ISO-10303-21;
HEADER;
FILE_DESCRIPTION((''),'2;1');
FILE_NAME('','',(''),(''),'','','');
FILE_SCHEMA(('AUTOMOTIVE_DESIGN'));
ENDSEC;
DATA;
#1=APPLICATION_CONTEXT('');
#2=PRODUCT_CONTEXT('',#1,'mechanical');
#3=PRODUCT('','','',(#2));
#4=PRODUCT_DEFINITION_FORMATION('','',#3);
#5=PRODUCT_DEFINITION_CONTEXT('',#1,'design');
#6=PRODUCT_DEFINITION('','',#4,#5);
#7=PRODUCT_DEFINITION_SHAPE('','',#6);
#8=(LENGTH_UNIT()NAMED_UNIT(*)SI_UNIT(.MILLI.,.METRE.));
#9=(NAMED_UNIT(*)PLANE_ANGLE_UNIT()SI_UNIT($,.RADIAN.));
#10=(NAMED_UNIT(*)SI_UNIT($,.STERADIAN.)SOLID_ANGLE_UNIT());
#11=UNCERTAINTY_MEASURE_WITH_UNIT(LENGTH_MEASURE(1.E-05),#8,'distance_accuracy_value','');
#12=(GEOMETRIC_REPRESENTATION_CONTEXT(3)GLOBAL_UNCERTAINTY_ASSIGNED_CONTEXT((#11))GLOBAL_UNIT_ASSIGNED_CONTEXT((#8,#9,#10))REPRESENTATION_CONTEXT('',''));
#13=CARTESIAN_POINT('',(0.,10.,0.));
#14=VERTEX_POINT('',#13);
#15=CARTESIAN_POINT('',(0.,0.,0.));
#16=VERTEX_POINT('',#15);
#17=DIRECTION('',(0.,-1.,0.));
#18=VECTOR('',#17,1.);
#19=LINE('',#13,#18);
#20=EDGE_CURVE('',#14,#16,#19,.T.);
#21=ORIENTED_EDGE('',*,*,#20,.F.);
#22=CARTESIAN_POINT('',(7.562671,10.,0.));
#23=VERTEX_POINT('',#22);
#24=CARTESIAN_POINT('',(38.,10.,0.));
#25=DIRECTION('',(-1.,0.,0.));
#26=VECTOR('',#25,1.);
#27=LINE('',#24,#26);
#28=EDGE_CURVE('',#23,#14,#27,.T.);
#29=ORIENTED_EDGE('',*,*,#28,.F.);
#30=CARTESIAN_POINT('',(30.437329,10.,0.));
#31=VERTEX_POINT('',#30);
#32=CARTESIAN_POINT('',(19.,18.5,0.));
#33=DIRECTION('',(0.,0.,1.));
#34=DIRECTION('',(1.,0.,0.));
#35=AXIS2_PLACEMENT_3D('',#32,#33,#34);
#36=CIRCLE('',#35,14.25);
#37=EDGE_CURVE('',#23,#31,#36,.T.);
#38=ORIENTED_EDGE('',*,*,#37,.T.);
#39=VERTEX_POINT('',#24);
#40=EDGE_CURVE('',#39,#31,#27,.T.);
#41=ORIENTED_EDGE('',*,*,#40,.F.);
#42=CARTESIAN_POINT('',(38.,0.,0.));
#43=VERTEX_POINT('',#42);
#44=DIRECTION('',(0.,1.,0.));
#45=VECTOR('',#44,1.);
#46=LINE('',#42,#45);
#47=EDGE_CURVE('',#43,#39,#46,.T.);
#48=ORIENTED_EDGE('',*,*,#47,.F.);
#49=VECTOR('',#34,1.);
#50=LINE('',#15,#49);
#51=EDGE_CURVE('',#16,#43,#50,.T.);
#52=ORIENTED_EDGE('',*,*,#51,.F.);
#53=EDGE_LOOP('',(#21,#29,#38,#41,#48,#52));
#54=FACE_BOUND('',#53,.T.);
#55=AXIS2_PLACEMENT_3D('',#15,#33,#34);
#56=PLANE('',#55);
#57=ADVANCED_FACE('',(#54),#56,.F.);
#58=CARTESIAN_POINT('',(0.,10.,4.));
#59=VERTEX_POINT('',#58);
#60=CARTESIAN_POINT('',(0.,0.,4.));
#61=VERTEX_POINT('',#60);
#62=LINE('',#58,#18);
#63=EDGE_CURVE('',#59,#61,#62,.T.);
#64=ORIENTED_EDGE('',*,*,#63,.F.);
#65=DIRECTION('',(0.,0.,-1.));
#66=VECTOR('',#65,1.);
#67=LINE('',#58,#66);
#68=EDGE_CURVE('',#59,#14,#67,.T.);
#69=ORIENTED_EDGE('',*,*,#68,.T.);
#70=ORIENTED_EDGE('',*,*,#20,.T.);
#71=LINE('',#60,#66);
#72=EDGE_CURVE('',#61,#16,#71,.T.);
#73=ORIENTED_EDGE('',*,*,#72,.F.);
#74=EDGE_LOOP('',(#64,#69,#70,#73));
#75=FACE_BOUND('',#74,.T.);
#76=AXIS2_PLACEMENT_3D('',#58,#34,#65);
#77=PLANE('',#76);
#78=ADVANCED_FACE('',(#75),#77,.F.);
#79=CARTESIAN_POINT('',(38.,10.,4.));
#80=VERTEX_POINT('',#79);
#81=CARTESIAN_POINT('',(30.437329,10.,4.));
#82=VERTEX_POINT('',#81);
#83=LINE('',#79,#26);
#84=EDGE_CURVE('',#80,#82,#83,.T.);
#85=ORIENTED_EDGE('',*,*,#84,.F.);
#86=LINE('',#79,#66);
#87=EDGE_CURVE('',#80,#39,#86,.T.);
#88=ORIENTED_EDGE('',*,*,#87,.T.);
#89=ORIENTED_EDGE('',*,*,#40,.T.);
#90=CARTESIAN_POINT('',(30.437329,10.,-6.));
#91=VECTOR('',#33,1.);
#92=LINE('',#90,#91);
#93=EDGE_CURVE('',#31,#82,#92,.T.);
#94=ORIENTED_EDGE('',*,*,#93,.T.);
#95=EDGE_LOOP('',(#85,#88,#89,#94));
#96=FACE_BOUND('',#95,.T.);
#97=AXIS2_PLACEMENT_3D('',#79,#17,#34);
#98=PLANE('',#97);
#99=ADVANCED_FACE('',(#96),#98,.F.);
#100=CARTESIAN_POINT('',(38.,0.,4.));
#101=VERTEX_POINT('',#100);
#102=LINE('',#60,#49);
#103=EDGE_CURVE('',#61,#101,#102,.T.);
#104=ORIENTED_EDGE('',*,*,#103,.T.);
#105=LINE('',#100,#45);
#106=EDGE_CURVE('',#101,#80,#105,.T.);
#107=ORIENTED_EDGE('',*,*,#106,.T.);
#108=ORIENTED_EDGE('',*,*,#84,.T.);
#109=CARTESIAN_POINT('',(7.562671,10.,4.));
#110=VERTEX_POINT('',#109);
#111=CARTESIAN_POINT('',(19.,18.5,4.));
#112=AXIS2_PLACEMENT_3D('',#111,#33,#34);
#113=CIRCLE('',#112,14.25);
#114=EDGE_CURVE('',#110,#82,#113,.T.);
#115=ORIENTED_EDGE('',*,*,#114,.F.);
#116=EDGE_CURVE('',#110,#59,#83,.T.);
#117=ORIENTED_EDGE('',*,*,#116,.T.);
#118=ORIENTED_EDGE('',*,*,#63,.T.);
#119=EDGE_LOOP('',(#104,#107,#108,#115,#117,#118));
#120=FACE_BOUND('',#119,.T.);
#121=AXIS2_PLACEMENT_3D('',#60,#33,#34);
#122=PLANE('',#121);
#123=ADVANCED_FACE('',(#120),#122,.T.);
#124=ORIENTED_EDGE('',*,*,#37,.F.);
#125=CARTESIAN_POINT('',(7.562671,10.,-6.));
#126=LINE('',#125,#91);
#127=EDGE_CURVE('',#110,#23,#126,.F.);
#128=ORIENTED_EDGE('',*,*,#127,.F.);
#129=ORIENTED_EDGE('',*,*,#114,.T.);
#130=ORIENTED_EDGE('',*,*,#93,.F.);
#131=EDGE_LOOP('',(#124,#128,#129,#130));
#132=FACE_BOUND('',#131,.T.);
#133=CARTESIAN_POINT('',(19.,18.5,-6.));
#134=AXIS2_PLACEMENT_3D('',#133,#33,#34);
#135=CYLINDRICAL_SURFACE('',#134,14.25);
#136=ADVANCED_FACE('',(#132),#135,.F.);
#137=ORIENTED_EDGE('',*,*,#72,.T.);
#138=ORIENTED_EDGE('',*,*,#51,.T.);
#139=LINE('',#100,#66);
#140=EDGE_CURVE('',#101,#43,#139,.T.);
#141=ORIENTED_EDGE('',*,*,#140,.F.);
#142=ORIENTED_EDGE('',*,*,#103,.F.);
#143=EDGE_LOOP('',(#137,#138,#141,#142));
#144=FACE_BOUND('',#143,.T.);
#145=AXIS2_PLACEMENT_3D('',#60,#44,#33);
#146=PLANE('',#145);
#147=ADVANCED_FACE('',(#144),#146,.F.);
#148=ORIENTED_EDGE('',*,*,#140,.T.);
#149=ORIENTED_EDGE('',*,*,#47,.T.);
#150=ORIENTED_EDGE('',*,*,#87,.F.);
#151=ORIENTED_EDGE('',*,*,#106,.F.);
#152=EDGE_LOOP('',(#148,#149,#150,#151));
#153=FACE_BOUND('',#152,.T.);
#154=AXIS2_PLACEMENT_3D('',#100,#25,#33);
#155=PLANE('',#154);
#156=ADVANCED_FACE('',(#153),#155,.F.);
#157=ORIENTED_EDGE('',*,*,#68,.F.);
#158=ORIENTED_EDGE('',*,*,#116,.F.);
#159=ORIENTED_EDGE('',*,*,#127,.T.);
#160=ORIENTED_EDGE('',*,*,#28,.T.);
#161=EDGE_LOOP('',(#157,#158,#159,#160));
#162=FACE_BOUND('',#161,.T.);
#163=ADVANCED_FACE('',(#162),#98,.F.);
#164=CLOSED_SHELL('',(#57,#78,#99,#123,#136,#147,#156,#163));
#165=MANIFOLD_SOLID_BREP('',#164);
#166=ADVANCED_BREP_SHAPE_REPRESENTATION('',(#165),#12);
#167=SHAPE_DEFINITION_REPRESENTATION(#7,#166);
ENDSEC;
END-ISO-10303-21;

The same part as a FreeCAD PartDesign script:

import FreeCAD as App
import Part
import Sketcher

doc = App.newDocument("Part")
params = doc.addObject("Spreadsheet::Sheet", "Params")
for row, (alias, value) in enumerate([
    ("sketch1_width", "38 mm"),
    ("sketch1_height", "10 mm"),
    ("pad1_length", "4 mm"),
    ("sketch2_diameter", "28.5 mm"),
    ("pocket1_length", "10 mm"),
], start=1):
    params.set(f"A{row}", alias)
    params.set(f"B{row}", "=" + value)
    params.setAlias(f"B{row}", alias)

body = doc.addObject("PartDesign::Body", "Body")

sketch1 = body.newObject("Sketcher::SketchObject", "Sketch")
sketch1.AttachmentSupport = (doc.getObject("XY_Plane"), [""])
sketch1.MapMode = "FlatFace"
sketch1.addGeometry(Part.LineSegment(App.Vector(0, 10, 0), App.Vector(0, 0, 0)), False)
sketch1.addGeometry(Part.LineSegment(App.Vector(0, 0, 0), App.Vector(38, 0, 0)), False)
sketch1.addGeometry(Part.LineSegment(App.Vector(38, 0, 0), App.Vector(38, 10, 0)), False)
sketch1.addGeometry(Part.LineSegment(App.Vector(38, 10, 0), App.Vector(0, 10, 0)), False)
sketch1.addConstraint(Sketcher.Constraint("Coincident", 0, 2, 1, 1))
sketch1.addConstraint(Sketcher.Constraint("Coincident", 1, 2, 2, 1))
sketch1.addConstraint(Sketcher.Constraint("Coincident", 2, 2, 3, 1))
sketch1.addConstraint(Sketcher.Constraint("Coincident", 3, 2, 0, 1))
sketch1.addConstraint(Sketcher.Constraint("Vertical", 0))
sketch1.addConstraint(Sketcher.Constraint("Horizontal", 1))
sketch1.addConstraint(Sketcher.Constraint("Vertical", 2))
sketch1.addConstraint(Sketcher.Constraint("Horizontal", 3))
sketch1.addConstraint(Sketcher.Constraint("Coincident", 0, 2, -1, 1))
sketch1.addConstraint(Sketcher.Constraint("DistanceX", 1, 1, 1, 2, 38.0))
sketch1.addConstraint(Sketcher.Constraint("DistanceY", 0, 2, 0, 1, 10.0))
sketch1.setExpression("Constraints[9]", "Params.sketch1_width")
sketch1.setExpression("Constraints[10]", "Params.sketch1_height")
pad1 = body.newObject("PartDesign::Pad", "Pad")
pad1.Profile = sketch1
pad1.setExpression("Length", "Params.pad1_length")

sketch2 = body.newObject("Sketcher::SketchObject", "Sketch001")
sketch2.AttachmentSupport = (doc.getObject("XY_Plane"), [""])
sketch2.MapMode = "FlatFace"
sketch2.AttachmentOffset = App.Placement(App.Vector(0, 0, 4), App.Rotation())
sketch2.addGeometry(Part.Circle(App.Vector(19, 18.5, 0), App.Vector(0, 0, 1), 14.25), False)
sketch2.addConstraint(Sketcher.Constraint("Diameter", 0, 28.5))
sketch2.addConstraint(Sketcher.Constraint("DistanceX", -1, 1, 0, 3, 19.0))
sketch2.addConstraint(Sketcher.Constraint("DistanceY", -1, 1, 0, 3, 18.5))
sketch2.setExpression("Constraints[0]", "Params.sketch2_diameter")
pocket1 = body.newObject("PartDesign::Pocket", "Pocket")
pocket1.Profile = sketch2
pocket1.setExpression("Length", "Params.pocket1_length")

doc.recompute()
